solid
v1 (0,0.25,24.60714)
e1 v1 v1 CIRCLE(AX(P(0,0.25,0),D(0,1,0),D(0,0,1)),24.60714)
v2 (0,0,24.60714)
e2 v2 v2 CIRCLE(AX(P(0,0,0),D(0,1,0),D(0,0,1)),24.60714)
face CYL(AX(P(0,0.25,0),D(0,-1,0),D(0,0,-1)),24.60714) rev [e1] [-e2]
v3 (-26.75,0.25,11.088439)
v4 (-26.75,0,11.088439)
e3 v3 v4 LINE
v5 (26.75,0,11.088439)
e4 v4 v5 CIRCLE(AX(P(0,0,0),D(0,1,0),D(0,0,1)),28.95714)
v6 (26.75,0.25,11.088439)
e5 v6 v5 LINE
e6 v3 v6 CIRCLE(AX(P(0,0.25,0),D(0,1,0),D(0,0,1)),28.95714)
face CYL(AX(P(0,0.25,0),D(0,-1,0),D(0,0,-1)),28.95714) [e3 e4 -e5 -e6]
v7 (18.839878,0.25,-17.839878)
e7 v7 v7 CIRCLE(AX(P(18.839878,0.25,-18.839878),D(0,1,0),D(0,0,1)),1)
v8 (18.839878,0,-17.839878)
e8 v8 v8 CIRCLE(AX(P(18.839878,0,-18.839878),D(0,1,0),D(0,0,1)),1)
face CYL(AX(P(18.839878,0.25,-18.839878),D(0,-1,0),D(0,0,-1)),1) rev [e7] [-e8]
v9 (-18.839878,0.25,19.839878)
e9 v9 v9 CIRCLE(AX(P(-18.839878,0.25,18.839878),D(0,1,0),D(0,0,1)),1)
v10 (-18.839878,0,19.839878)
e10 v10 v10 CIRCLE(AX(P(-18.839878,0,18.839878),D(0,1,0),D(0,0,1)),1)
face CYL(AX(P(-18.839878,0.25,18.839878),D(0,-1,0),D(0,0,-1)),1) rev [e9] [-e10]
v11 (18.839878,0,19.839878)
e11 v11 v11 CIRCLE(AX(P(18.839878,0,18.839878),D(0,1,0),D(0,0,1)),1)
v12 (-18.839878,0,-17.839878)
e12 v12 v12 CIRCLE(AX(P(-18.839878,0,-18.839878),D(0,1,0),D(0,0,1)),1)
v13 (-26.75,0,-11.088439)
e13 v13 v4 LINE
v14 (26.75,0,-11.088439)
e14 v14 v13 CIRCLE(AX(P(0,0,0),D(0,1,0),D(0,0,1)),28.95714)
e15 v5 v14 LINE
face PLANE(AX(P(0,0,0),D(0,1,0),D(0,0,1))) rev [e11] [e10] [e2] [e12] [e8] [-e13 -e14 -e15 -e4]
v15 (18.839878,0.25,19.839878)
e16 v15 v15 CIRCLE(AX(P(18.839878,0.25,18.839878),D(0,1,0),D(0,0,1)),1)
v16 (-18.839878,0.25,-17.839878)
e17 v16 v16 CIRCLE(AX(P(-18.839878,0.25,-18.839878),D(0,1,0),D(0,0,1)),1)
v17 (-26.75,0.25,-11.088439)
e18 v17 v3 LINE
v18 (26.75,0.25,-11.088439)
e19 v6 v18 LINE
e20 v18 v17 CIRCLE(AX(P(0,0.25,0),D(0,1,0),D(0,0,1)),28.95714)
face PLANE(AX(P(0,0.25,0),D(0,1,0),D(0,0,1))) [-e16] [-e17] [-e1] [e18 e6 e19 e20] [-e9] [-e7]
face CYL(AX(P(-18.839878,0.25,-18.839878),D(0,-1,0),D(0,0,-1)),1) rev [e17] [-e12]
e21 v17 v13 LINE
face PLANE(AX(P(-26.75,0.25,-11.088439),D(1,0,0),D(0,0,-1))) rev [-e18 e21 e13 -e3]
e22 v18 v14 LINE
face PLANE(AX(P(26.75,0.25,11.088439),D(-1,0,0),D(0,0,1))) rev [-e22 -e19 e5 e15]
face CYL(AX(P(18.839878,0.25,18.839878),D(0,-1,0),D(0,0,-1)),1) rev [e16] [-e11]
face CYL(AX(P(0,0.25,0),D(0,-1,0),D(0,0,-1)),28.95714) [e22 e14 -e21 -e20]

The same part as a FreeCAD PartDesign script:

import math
import FreeCAD as App
import Part
import Sketcher

V = App.Vector

doc = App.newDocument("Part")
body = doc.addObject("PartDesign::Body", "Body")

# Sketch on XZ plane
sketch1 = body.newObject("Sketcher::SketchObject", "Sketch")
sketch1.AttachmentSupport = (doc.getObject("XZ_Plane"), [""])
sketch1.MapMode = "FlatFace"
sketch1.addGeometry([
    Part.LineSegment(V(-26.8, -11.1, 0), V(-26.8, 11.1, 0)),  # 0
    Part.ArcOfCircle(Part.Circle(V(0, 0, 0), V(0, 0, 1), 29), math.radians(23), math.radians(157)),  # 1
    Part.LineSegment(V(26.8, 11.1, 0), V(26.8, -11.1, 0)),  # 2
    Part.ArcOfCircle(Part.Circle(V(0, 0, 0), V(0, 0, 1), 29), math.radians(-157), math.radians(-23)),  # 3
    Part.Circle(V(-18.8, 18.8, 0), V(0, 0, 1), 1),  # 4
    Part.Circle(V(18.8, 18.8, 0), V(0, 0, 1), 1),  # 5
    Part.Circle(V(-18.8, -18.8, 0), V(0, 0, 1), 1),  # 6
    Part.Circle(V(0, 0, 0), V(0, 0, 1), 24.6),  # 7
    Part.Circle(V(18.8, -18.8, 0), V(0, 0, 1), 1),  # 8
], False)
sketch1.addConstraint([
    Sketcher.Constraint("Coincident", 0, 2, 1, 2),
    Sketcher.Constraint("Coincident", 1, 1, 2, 1),
    Sketcher.Constraint("Coincident", 2, 2, 3, 2),
    Sketcher.Constraint("Coincident", 3, 1, 0, 1),
    Sketcher.Constraint("Vertical", 0),
    Sketcher.Constraint("Vertical", 2),
    Sketcher.Constraint("Coincident", 1, 3, -1, 1),
    Sketcher.Constraint("Coincident", 3, 3, -1, 1),
    Sketcher.Constraint("Coincident", 7, 3, -1, 1),
    Sketcher.Constraint("Equal", 1, 3),
    Sketcher.Constraint("Equal", 4, 5),
    Sketcher.Constraint("Equal", 5, 6),
    Sketcher.Constraint("Equal", 6, 8),
    Sketcher.Constraint("Symmetric", 5, 3, 6, 3, -1, 1),
    Sketcher.Constraint("Symmetric", 4, 3, 8, 3, -1, 1),
    Sketcher.Constraint("Symmetric", 4, 3, 5, 3, -2),
    Sketcher.Constraint("Horizontal", 0, 2, 1, 1),
    Sketcher.Constraint("Diameter", 4, 2.0),
    Sketcher.Constraint("Diameter", 7, 49.21428),
    Sketcher.Constraint("DistanceX", 0, 2, -1, 1, 26.75),
    Sketcher.Constraint("Radius", 1, 28.95714),
    Sketcher.Constraint("DistanceY", 0, 2, 4, 3, 7.751439),
    Sketcher.Constraint("DistanceX", 4, 3, -1, 1, 18.839878),
])
pad1 = body.newObject("PartDesign::Pad", "Pad")
pad1.Profile = sketch1
pad1.Length = 0.25
pad1.Reversed = True

doc.recompute()
